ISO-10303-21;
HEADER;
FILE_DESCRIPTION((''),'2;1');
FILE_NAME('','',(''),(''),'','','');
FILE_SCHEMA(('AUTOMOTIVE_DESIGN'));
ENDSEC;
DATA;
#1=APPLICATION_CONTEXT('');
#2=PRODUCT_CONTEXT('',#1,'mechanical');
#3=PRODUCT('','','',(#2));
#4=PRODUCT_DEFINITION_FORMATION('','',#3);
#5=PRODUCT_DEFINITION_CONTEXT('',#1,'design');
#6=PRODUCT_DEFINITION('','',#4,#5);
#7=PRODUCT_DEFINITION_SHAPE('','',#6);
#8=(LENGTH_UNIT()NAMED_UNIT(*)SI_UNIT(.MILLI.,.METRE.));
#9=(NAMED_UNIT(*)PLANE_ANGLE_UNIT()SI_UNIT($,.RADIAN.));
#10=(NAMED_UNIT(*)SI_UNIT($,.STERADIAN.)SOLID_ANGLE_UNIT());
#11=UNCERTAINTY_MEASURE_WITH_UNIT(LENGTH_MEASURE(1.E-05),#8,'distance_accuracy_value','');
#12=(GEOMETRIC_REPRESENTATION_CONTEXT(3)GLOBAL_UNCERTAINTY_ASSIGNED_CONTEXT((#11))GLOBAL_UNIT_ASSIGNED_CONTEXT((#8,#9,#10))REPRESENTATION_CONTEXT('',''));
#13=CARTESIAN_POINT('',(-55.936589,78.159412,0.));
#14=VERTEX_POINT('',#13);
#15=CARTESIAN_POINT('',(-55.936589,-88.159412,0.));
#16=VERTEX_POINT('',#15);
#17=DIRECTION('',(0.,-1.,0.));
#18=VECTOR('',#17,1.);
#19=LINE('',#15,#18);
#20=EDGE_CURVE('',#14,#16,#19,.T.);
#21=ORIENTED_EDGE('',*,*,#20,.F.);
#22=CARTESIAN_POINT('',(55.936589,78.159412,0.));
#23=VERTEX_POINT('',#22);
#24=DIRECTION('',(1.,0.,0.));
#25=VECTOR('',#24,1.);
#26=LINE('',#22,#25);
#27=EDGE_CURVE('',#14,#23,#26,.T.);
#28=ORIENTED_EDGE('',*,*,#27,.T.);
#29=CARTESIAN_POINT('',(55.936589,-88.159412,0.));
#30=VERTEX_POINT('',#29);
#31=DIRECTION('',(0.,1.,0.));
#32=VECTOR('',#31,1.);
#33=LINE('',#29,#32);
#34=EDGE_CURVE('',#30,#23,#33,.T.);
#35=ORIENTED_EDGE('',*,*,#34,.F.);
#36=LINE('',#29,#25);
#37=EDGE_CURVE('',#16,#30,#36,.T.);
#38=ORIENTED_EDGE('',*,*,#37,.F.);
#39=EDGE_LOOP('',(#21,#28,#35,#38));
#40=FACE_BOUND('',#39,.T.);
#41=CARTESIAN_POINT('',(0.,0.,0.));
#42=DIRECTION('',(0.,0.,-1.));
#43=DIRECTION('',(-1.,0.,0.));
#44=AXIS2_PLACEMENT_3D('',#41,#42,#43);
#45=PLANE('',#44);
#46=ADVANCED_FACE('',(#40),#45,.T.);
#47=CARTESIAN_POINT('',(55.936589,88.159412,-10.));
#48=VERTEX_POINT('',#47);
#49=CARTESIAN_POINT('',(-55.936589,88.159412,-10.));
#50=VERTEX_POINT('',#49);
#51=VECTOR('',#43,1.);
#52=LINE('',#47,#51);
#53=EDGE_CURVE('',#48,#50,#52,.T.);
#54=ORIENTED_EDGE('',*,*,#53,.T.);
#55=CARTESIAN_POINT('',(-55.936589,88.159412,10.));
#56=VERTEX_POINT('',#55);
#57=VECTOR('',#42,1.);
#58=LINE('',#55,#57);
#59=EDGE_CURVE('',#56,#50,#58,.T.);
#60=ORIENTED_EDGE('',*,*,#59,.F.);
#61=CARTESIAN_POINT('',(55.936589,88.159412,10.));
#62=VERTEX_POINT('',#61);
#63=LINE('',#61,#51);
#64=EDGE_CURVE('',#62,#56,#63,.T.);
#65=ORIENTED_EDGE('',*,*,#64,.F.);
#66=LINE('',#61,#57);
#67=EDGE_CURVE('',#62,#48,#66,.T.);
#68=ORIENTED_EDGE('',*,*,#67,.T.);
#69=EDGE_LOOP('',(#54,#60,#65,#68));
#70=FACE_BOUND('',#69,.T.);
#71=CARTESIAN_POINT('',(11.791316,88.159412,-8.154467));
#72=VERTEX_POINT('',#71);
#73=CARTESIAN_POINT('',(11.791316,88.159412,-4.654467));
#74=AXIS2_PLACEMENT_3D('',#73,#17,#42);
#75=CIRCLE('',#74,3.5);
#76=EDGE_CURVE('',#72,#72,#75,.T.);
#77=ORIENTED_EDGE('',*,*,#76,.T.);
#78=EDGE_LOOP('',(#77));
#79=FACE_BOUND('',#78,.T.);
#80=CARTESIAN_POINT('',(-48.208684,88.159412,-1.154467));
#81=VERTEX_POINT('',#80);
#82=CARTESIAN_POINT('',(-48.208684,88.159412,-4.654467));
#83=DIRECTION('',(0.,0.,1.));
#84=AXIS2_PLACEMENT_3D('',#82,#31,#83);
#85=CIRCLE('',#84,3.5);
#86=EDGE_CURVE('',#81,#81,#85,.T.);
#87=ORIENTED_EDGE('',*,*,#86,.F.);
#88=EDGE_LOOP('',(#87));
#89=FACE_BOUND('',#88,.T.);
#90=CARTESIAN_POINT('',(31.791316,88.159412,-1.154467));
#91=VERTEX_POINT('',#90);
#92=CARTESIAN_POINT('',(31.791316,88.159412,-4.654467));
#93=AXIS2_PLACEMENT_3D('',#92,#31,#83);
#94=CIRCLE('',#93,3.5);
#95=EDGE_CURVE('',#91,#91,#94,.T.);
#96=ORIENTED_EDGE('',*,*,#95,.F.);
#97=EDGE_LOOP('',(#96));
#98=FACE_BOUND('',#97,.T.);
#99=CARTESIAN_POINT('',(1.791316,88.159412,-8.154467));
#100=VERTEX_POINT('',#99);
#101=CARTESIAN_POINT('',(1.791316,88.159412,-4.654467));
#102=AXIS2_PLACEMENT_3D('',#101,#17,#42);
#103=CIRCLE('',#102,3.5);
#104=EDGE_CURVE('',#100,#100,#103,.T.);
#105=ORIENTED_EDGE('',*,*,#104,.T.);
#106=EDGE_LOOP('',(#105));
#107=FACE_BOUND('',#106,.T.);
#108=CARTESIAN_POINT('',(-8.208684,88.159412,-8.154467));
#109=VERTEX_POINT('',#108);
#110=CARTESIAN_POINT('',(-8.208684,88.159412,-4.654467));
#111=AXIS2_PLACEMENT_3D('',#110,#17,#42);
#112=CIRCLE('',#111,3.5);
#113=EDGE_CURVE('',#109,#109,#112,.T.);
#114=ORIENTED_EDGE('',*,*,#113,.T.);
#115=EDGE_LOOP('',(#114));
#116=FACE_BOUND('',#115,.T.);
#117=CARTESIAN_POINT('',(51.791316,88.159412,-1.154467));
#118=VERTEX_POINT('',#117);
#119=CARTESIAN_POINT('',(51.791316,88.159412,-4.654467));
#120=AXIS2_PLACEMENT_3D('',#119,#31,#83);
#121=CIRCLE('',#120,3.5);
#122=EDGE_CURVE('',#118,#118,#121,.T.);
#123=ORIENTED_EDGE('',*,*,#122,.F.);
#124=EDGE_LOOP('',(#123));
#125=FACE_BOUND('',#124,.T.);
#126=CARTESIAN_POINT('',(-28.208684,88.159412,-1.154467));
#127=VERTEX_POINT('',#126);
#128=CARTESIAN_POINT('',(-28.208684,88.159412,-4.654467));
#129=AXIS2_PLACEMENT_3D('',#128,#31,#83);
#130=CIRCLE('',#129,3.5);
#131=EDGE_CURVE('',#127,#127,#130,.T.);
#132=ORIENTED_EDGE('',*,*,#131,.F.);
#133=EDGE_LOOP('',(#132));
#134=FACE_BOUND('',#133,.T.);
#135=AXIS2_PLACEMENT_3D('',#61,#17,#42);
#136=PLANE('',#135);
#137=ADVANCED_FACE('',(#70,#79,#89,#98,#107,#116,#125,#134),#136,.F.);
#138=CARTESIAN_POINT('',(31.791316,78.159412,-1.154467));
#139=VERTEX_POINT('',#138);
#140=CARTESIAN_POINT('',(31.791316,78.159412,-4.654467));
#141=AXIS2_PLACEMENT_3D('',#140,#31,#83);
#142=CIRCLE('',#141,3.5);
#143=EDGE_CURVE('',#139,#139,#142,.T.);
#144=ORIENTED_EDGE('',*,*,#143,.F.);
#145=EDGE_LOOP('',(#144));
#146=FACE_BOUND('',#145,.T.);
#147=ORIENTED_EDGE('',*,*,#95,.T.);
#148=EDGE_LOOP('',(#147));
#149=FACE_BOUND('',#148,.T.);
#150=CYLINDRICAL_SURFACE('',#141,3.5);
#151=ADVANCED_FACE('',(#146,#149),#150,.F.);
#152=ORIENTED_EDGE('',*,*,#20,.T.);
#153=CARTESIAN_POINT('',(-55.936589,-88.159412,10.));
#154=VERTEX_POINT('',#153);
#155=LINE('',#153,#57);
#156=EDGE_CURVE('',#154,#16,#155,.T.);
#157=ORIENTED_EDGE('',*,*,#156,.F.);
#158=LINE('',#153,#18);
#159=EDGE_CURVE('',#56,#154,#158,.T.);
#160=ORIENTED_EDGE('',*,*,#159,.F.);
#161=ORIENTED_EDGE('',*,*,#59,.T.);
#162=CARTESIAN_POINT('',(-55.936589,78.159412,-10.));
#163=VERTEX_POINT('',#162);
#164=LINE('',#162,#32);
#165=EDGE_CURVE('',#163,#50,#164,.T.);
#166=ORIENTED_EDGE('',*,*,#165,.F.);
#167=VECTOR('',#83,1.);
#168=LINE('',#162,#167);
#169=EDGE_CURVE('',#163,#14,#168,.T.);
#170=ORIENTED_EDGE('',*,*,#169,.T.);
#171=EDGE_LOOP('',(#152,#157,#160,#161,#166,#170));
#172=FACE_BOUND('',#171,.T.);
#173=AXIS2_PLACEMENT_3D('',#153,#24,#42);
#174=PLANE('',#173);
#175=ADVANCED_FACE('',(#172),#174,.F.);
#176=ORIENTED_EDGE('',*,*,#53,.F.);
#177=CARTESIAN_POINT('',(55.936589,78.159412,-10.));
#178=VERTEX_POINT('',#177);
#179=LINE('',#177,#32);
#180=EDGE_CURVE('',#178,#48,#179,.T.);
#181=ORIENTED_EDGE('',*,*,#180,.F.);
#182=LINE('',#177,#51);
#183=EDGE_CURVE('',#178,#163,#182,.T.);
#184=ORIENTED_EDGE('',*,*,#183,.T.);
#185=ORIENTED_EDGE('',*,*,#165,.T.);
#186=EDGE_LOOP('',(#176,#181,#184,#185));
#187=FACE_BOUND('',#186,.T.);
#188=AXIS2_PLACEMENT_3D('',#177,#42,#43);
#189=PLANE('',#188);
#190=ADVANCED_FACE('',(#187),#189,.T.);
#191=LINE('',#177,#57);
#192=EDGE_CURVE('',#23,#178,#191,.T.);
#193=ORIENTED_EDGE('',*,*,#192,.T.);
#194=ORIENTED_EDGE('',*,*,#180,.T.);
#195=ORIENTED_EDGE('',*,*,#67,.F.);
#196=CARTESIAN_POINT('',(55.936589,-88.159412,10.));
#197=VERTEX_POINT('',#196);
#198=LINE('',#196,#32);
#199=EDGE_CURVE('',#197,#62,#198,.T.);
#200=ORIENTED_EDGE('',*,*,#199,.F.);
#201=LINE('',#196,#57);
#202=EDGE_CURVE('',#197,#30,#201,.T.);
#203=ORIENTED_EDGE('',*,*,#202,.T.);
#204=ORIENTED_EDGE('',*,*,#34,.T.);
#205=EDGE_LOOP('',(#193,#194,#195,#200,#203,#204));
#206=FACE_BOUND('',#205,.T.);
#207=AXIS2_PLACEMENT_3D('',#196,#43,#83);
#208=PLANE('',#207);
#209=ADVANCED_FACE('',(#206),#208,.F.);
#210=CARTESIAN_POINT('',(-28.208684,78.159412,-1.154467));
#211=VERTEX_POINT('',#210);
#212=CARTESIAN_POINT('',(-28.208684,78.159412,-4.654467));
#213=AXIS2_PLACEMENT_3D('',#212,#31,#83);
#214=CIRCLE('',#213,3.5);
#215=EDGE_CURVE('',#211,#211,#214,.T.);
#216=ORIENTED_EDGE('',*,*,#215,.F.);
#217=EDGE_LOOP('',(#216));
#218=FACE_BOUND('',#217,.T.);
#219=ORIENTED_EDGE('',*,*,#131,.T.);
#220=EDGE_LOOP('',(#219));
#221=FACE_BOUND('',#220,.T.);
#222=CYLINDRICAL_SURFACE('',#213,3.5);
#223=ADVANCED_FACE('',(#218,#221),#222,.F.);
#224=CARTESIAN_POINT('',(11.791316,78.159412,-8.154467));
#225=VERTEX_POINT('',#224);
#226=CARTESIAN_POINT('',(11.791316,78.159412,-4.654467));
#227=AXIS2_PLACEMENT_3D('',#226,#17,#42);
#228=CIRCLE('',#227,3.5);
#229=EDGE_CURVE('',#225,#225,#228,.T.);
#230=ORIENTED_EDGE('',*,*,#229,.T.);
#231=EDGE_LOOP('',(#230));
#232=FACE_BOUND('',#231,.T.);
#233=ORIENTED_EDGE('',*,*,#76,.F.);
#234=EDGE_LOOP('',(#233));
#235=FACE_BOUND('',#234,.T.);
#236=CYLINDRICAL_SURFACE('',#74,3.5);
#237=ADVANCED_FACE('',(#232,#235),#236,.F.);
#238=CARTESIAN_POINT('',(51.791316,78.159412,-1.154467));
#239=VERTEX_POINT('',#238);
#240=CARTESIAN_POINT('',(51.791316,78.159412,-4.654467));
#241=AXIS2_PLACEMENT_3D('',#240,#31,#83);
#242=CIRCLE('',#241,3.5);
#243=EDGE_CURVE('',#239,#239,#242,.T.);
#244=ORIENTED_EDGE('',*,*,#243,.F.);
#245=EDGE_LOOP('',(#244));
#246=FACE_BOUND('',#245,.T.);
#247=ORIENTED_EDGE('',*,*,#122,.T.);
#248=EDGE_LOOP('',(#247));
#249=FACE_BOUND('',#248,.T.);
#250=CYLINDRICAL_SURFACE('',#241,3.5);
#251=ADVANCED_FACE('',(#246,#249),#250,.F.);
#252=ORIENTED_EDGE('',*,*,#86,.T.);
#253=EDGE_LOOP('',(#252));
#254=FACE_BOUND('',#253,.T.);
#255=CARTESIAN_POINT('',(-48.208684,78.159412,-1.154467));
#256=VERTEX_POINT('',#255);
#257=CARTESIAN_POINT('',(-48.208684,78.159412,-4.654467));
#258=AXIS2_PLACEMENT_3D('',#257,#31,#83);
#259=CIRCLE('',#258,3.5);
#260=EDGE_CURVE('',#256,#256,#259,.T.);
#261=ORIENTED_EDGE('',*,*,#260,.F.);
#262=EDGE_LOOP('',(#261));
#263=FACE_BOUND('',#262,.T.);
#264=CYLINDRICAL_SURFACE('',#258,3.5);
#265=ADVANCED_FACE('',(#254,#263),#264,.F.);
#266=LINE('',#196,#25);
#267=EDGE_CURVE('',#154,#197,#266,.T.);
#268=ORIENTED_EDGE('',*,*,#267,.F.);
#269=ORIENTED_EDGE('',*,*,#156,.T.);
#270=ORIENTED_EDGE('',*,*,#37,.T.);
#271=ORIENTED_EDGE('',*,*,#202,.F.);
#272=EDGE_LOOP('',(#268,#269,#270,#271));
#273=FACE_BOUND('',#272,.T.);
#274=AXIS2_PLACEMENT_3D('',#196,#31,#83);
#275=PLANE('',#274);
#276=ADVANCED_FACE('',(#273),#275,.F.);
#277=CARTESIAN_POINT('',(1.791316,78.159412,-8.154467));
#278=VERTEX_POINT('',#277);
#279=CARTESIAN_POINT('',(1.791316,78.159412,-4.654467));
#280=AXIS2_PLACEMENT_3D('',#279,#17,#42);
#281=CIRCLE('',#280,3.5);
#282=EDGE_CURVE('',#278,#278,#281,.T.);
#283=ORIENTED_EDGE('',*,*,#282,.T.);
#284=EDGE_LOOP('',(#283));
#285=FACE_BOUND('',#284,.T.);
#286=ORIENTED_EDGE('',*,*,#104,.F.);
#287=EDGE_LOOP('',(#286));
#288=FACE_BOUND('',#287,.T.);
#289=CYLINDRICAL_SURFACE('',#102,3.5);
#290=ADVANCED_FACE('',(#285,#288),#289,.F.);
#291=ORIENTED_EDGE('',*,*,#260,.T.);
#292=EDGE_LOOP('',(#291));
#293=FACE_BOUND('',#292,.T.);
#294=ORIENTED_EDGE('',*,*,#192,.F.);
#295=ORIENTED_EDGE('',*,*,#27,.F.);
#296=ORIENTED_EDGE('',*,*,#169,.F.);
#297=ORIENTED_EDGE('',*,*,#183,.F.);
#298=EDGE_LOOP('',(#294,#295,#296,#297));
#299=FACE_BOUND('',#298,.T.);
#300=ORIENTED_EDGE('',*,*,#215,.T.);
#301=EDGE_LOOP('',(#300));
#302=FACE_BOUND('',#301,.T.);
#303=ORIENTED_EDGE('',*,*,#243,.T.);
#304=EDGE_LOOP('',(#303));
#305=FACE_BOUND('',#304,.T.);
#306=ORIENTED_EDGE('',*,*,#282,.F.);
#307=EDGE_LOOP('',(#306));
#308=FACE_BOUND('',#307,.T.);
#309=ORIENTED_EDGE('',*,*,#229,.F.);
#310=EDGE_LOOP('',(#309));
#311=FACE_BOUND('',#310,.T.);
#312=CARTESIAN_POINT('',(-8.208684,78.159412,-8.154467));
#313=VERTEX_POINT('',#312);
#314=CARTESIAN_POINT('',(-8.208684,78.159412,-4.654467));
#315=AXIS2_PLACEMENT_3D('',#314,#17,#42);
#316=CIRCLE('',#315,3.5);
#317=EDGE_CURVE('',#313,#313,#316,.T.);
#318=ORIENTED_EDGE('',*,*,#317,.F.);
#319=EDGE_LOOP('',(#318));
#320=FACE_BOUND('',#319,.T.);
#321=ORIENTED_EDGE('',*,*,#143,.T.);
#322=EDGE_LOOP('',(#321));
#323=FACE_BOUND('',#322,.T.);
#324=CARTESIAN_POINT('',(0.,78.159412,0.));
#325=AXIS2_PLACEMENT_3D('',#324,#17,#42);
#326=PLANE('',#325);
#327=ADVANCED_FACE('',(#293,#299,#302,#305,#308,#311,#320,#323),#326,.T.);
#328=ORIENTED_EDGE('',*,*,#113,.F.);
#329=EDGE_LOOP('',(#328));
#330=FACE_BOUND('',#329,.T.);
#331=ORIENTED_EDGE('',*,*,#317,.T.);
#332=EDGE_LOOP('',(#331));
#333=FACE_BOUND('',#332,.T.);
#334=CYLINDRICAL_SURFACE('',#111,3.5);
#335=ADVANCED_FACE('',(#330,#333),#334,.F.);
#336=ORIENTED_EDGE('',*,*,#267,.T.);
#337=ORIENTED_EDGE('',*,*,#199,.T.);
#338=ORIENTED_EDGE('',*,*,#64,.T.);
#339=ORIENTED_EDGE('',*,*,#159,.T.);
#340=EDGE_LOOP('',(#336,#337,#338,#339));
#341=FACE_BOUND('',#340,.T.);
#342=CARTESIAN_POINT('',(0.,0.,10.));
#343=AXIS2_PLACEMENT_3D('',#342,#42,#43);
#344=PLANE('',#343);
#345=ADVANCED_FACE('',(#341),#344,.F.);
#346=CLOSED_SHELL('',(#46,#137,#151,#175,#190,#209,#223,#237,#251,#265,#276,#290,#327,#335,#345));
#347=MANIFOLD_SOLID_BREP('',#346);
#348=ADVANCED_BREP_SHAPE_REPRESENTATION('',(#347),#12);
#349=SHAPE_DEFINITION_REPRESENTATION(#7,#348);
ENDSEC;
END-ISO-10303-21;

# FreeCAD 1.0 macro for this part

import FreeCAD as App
import Part
import Sketcher
from FreeCAD import Vector
Q = App.Units.Quantity


def add_polygon(sketch, points):
    """Adds a closed chain of lines whose ends are joined by coincident constraints."""
    first, n = sketch.GeometryCount, len(points)
    for a, b in zip(points, points[1:] + points[:1]):
        sketch.addGeometry(Part.LineSegment(App.Vector(*a, 0), App.Vector(*b, 0)), False)
    for i in range(n):
        sketch.addConstraint(Sketcher.Constraint("Coincident", first + i, 2, first + (i + 1) % n, 1))

doc = App.newDocument("Part")
params = doc.addObject("Spreadsheet::Sheet", "Params")
for row, (alias, value) in enumerate([
    ("pad1_length", "10 mm"),
    ("sketch2_height", "10 mm"),
    ("pad2_length", "10 mm"),
    ("sketch3_diameter", "7 mm"),
    ("pocket1_length", "10 mm"),
    ("sketch4_diameter", "7 mm"),
    ("pocket2_length", "10 mm"),
    ("sketch5_diameter", "7 mm"),
    ("pocket3_length", "10 mm"),
], start=1):
    params.set(f"A{row}", alias)
    params.set(f"B{row}", "=" + value)
    params.setAlias(f"B{row}", alias)

body = doc.addObject("PartDesign::Body", "Body")

# Sketch on XY plane
sketch1 = doc.addObject("Sketcher::SketchObject", "Sketch")
body.addObject(sketch1)
sketch1.AttachmentSupport = (doc.XY_Plane, [""])
sketch1.MapMode = "FlatFace"
add_polygon(sketch1, [(-56, -88), (56, -88), (56, 88), (-56, 88)])  # lines 0-3
sketch1.addConstraint([
    Sketcher.Constraint("Horizontal", 0),
    Sketcher.Constraint("Vertical", 1),
    Sketcher.Constraint("Horizontal", 2),
    Sketcher.Constraint("Vertical", 3),
    Sketcher.Constraint("Symmetric", 0, 2, 2, 2, -1, 1),
    Sketcher.Constraint("DistanceX", 0, 1, 0, 2, Q("111.873178 mm")),
    Sketcher.Constraint("DistanceY", 1, 1, 1, 2, Q("176.318825 mm")),
])
pad1 = doc.addObject("PartDesign::Pad", "Pad")
body.addObject(pad1)
pad1.Profile = sketch1
pad1.setExpression("Length", "Params.pad1_length")

# Sketch on XZ plane
sketch2 = doc.addObject("Sketcher::SketchObject", "Sketch001")
body.addObject(sketch2)
sketch2.AttachmentSupport = (doc.XZ_Plane, [""])
sketch2.MapMode = "FlatFace"
sketch2.AttachmentOffset = App.Placement(Vector(0, 0, -88.159412), App.Rotation())
add_polygon(sketch2, [(56, 0), (56, -10), (-56, -10), (-56, 0)])  # lines 0-3
sketch2.addConstraint([
    Sketcher.Constraint("Vertical", 0),
    Sketcher.Constraint("Horizontal", 1),
    Sketcher.Constraint("Vertical", 2),
    Sketcher.Constraint("Horizontal", 3),
    Sketcher.Constraint("Symmetric", 2, 2, 3, 2, -1, 1),
    Sketcher.Constraint("DistanceY", 0, 2, 0, 1, Q("10 mm")),
    Sketcher.Constraint("DistanceX", 1, 2, 1, 1, Q("111.873178 mm")),
])
sketch2.setExpression("Constraints[9]", "Params.sketch2_height")
pad2 = doc.addObject("PartDesign::Pad", "Pad001")
body.addObject(pad2)
pad2.Profile = sketch2
pad2.setExpression("Length", "Params.pad2_length")

# Sketch on XZ plane
sketch3 = doc.addObject("Sketcher::SketchObject", "Sketch002")
body.addObject(sketch3)
sketch3.AttachmentSupport = (doc.XZ_Plane, [""])
sketch3.MapMode = "FlatFace"
sketch3.AttachmentOffset = App.Placement(Vector(0, 0, -78.159412), App.Rotation())
sketch3.addGeometry([
    Part.Circle(Vector(11.8, -4.7, 0), Vector(0, 0, 1), 3.5),
    Part.Circle(Vector(1.8, -4.7, 0), Vector(0, 0, 1), 3.5),
    Part.Circle(Vector(-8.2, -4.7, 0), Vector(0, 0, 1), 3.5),
], False)
sketch3.addConstraint([
    Sketcher.Constraint("Equal", 0, 1),
    Sketcher.Constraint("Equal", 1, 2),
    Sketcher.Constraint("Horizontal", 0, 3, 1, 3),
    Sketcher.Constraint("Horizontal", 1, 3, 2, 3),
    Sketcher.Constraint("Diameter", 0, Q("7 mm")),
    Sketcher.Constraint("DistanceX", 1, 3, 0, 3, Q("10 mm")),
    Sketcher.Constraint("DistanceX", 2, 3, 1, 3, Q("10 mm")),
    Sketcher.Constraint("DistanceX", -1, 1, 0, 3, Q("11.791316 mm")),
    Sketcher.Constraint("DistanceY", 0, 3, -1, 1, Q("4.654467 mm")),
])
sketch3.setExpression("Constraints[4]", "Params.sketch3_diameter")
pocket1 = doc.addObject("PartDesign::Pocket", "Pocket")
body.addObject(pocket1)
pocket1.Profile = sketch3
pocket1.setExpression("Length", "Params.pocket1_length")

# Sketch on XZ plane
sketch4 = doc.addObject("Sketcher::SketchObject", "Sketch003")
body.addObject(sketch4)
sketch4.AttachmentSupport = (doc.XZ_Plane, [""])
sketch4.MapMode = "FlatFace"
sketch4.AttachmentOffset = App.Placement(Vector(0, 0, -88.159412), App.Rotation())
sketch4.addGeometry([
    Part.Circle(Vector(31.8, -4.7, 0), Vector(0, 0, 1), 3.5),
    Part.Circle(Vector(-28.2, -4.7, 0), Vector(0, 0, 1), 3.5),
], False)
sketch4.addConstraint([
    Sketcher.Constraint("Equal", 0, 1),
    Sketcher.Constraint("Horizontal", 0, 3, 1, 3),
    Sketcher.Constraint("Diameter", 0, Q("7 mm")),
    Sketcher.Constraint("DistanceX", 1, 3, 0, 3, Q("60 mm")),
    Sketcher.Constraint("DistanceX", -1, 1, 0, 3, Q("31.791316 mm")),
    Sketcher.Constraint("DistanceY", 0, 3, -1, 1, Q("4.654467 mm")),
])
sketch4.setExpression("Constraints[2]", "Params.sketch4_diameter")
pocket2 = doc.addObject("PartDesign::Pocket", "Pocket001")
body.addObject(pocket2)
pocket2.Profile = sketch4
pocket2.setExpression("Length", "Params.pocket2_length")
pocket2.Reversed = True

# Sketch on XZ plane
sketch5 = doc.addObject("Sketcher::SketchObject", "Sketch004")
body.addObject(sketch5)
sketch5.AttachmentSupport = (doc.XZ_Plane, [""])
sketch5.MapMode = "FlatFace"
sketch5.AttachmentOffset = App.Placement(Vector(0, 0, -88.159412), App.Rotation())
sketch5.addGeometry([
    Part.Circle(Vector(-48.2, -4.7, 0), Vector(0, 0, 1), 3.5),
    Part.Circle(Vector(51.8, -4.7, 0), Vector(0, 0, 1), 3.5),
], False)
sketch5.addConstraint([
    Sketcher.Constraint("Equal", 0, 1),
    Sketcher.Constraint("Horizontal", 0, 3, 1, 3),
    Sketcher.Constraint("Diameter", 0, Q("7 mm")),
    Sketcher.Constraint("DistanceX", 0, 3, 1, 3, Q("100 mm")),
    Sketcher.Constraint("DistanceX", 0, 3, -1, 1, Q("48.208684 mm")),
    Sketcher.Constraint("DistanceY", 0, 3, -1, 1, Q("4.654467 mm")),
])
sketch5.setExpression("Constraints[2]", "Params.sketch5_diameter")
pocket3 = doc.addObject("PartDesign::Pocket", "Pocket002")
body.addObject(pocket3)
pocket3.Profile = sketch5
pocket3.setExpression("Length", "Params.pocket3_length")
pocket3.Reversed = True

doc.recompute()
